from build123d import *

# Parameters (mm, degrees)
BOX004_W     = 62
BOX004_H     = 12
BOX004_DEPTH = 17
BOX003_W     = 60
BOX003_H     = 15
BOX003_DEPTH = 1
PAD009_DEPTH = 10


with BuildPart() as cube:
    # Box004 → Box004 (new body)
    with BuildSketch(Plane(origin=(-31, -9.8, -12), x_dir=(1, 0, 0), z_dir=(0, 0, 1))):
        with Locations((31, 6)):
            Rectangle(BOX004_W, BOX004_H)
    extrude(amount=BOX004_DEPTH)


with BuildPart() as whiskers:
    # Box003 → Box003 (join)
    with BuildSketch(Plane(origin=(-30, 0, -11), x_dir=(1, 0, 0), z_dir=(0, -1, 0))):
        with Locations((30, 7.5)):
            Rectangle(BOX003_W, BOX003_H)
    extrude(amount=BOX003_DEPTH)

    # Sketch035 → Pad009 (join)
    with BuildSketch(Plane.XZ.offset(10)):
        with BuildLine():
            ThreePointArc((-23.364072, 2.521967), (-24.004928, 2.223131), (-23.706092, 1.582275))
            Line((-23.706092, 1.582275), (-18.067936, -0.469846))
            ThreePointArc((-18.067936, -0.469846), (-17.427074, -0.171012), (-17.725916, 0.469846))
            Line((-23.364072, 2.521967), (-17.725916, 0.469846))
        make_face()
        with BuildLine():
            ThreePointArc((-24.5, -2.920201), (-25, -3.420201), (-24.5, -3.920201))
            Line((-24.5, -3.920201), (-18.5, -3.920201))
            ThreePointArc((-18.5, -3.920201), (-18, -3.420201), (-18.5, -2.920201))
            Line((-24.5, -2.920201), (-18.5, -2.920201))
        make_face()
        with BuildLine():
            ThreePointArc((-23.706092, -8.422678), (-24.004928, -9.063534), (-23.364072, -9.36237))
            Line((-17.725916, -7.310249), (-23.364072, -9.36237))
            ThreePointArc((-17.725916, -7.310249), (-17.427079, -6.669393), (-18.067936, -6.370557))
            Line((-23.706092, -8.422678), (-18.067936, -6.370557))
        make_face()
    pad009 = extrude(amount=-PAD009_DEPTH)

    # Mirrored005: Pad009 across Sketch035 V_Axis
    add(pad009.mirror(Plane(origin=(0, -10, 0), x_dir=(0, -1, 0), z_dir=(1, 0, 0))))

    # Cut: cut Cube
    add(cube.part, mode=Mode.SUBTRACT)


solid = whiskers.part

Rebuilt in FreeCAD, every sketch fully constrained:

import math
import FreeCAD as App
import Part
import Sketcher
Q = App.Units.Quantity


def add_polygon(sketch, points):
    """Adds a closed chain of lines whose ends are joined by coincident constraints."""
    first, n = sketch.GeometryCount, len(points)
    for a, b in zip(points, points[1:] + points[:1]):
        sketch.addGeometry(Part.LineSegment(App.Vector(*a, 0), App.Vector(*b, 0)), False)
    for i in range(n):
        sketch.addConstraint(Sketcher.Constraint("Coincident", first + i, 2, first + (i + 1) % n, 1))

doc = App.newDocument("Part")
body = doc.addObject("PartDesign::Body", "Body")

sketch1 = body.newObject("Sketcher::SketchObject", "Sketch")
sketch1.AttachmentSupport = (doc.getObject("XY_Plane"), [""])
sketch1.MapMode = "FlatFace"
sketch1.AttachmentOffset = App.Placement(App.Vector(0, 0, -12), App.Rotation())
add_polygon(sketch1, [(-31, 2), (-31, -10), (31, -10), (31, 2)])
sketch1.addConstraint([
    Sketcher.Constraint("Vertical", 0),
    Sketcher.Constraint("Horizontal", 1),
    Sketcher.Constraint("Vertical", 2),
    Sketcher.Constraint("Horizontal", 3),
    Sketcher.Constraint("DistanceX", 1, 1, 1, 2, Q("62 mm")),
    Sketcher.Constraint("DistanceY", 0, 2, 0, 1, Q("12 mm")),
    Sketcher.Constraint("DistanceX", 0, 2, -1, 1, Q("31 mm")),
    Sketcher.Constraint("DistanceY", 0, 2, -1, 1, Q("9.8 mm")),
])
pad1 = body.newObject("PartDesign::Pad", "Pad")
pad1.Profile = sketch1
pad1.Length = 17
body2 = doc.addObject("PartDesign::Body", "Body001")
body2.AllowCompound = True

sketch2 = body2.newObject("Sketcher::SketchObject", "Sketch001")
sketch2.AttachmentSupport = (doc.getObject("XZ_Plane001"), [""])
sketch2.MapMode = "FlatFace"
add_polygon(sketch2, [(-30, 4), (-30, -11), (30, -11), (30, 4)])
sketch2.addConstraint([
    Sketcher.Constraint("Vertical", 0),
    Sketcher.Constraint("Horizontal", 1),
    Sketcher.Constraint("Vertical", 2),
    Sketcher.Constraint("Horizontal", 3),
    Sketcher.Constraint("DistanceX", 1, 1, 1, 2, Q("60 mm")),
    Sketcher.Constraint("DistanceY", 0, 2, 0, 1, Q("15 mm")),
    Sketcher.Constraint("DistanceX", 0, 2, -1, 1, Q("30 mm")),
    Sketcher.Constraint("DistanceY", 0, 2, -1, 1, Q("11 mm")),
])
pad2 = body2.newObject("PartDesign::Pad", "Pad001")
pad2.Profile = sketch2
pad2.Length = 1

sketch3 = body2.newObject("Sketcher::SketchObject", "Sketch002")
sketch3.AttachmentSupport = (doc.getObject("XZ_Plane001"), [""])
sketch3.MapMode = "FlatFace"
sketch3.AttachmentOffset = App.Placement(App.Vector(0, 0, 10), App.Rotation())
sketch3.addGeometry([
    Part.ArcOfCircle(Part.Circle(App.Vector(-23.54, 2.05, 0), App.Vector(0, 0, 1), 0.5), math.radians(70), math.radians(250)),
    Part.LineSegment(App.Vector(-23.71, 1.58, 0), App.Vector(-18.07, -0.47, 0)),
    Part.ArcOfCircle(Part.Circle(App.Vector(-17.9, 0, 0), App.Vector(0, 0, 1), 0.5), math.radians(-110), math.radians(70)),
    Part.LineSegment(App.Vector(-17.73, 0.47, 0), App.Vector(-23.36, 2.52, 0)),
    Part.ArcOfCircle(Part.Circle(App.Vector(-24.5, -3.42, 0), App.Vector(0, 0, 1), 0.5), math.radians(90), math.radians(270)),
    Part.LineSegment(App.Vector(-24.5, -3.92, 0), App.Vector(-18.5, -3.92, 0)),
    Part.ArcOfCircle(Part.Circle(App.Vector(-18.5, -3.42, 0), App.Vector(0, 0, 1), 0.5), math.radians(-90), math.radians(90)),
    Part.LineSegment(App.Vector(-18.5, -2.92, 0), App.Vector(-24.5, -2.92, 0)),
    Part.ArcOfCircle(Part.Circle(App.Vector(-23.54, -8.89, 0), App.Vector(0, 0, 1), 0.5), math.radians(110), math.radians(290)),
    Part.LineSegment(App.Vector(-23.36, -9.36, 0), App.Vector(-17.73, -7.31, 0)),
    Part.ArcOfCircle(Part.Circle(App.Vector(-17.9, -6.84, 0), App.Vector(0, 0, 1), 0.5), math.radians(-70), math.radians(110)),
    Part.LineSegment(App.Vector(-18.07, -6.37, 0), App.Vector(-23.71, -8.42, 0)),
], False)
sketch3.addConstraint([
    Sketcher.Constraint("Tangent", 0, 2, 1, 1),
    Sketcher.Constraint("Coincident", 1, 2, 2, 1),
    Sketcher.Constraint("Coincident", 2, 2, 3, 1),
    Sketcher.Constraint("Tangent", 3, 2, 0, 1),
    Sketcher.Constraint("Tangent", 4, 2, 5, 1),
    Sketcher.Constraint("Tangent", 5, 2, 6, 1),
    Sketcher.Constraint("Tangent", 6, 2, 7, 1),
    Sketcher.Constraint("Tangent", 7, 2, 4, 1),
    Sketcher.Constraint("Tangent", 8, 2, 9, 1),
    Sketcher.Constraint("Tangent", 9, 2, 10, 1),
    Sketcher.Constraint("Tangent", 10, 2, 11, 1),
    Sketcher.Constraint("Tangent", 11, 2, 8, 1),
    Sketcher.Constraint("Horizontal", 5),
    Sketcher.Constraint("Horizontal", 7),
    Sketcher.Constraint("Equal", 0, 2),
    Sketcher.Constraint("Equal", 2, 4),
    Sketcher.Constraint("Equal", 6, 8),
    Sketcher.Constraint("Equal", 8, 10),
    Sketcher.Constraint("Vertical", 0, 3, 8, 3),
    Sketcher.Constraint("Vertical", 3, 2, 8, 2),
    Sketcher.Constraint("Vertical", 2, 2, 9, 2),
    Sketcher.Constraint("Vertical", 1, 2, 10, 2),
    Sketcher.Constraint("Radius", 0, Q("0.5 mm")),
    Sketcher.Constraint("DistanceX", 5, 1, 5, 2, Q("6 mm")),
    Sketcher.Constraint("Angle", 1, Q("-20 deg")),
    Sketcher.Constraint("Distance", 1, Q("6 mm")),
    Sketcher.Constraint("DistanceX", 4, 3, -1, 1, Q("24.5 mm")),
    Sketcher.Constraint("DistanceY", 4, 3, -1, 1, Q("3.420201 mm")),
    Sketcher.Constraint("DistanceY", 4, 3, 2, 3, Q("3.420199 mm")),
    Sketcher.Constraint("DistanceY", 10, 3, 6, 3, Q("3.420202 mm")),
    Sketcher.Constraint("DistanceX", 0, 3, -1, 1, Q("23.535082 mm")),
    Sketcher.Constraint("DistanceY", -1, 1, 0, 3, Q("2.052121 mm")),
])
pad3 = body2.newObject("PartDesign::Pad", "Pad002")
pad3.Profile = sketch3
pad3.Length = 10
pad3.Reversed = True
doc.recompute()

mirrored = body2.newObject("PartDesign::Mirrored", "Mirrored")
mirrored.Originals = [pad3]
mirrored.MirrorPlane = (doc.getObject("YZ_Plane001"), [""])
body2.Tip = mirrored
doc.recompute()

boolean = body2.newObject("PartDesign::Boolean", "Boolean")
boolean.Type = "Cut"
boolean.addObjects([body])

doc.recompute()
